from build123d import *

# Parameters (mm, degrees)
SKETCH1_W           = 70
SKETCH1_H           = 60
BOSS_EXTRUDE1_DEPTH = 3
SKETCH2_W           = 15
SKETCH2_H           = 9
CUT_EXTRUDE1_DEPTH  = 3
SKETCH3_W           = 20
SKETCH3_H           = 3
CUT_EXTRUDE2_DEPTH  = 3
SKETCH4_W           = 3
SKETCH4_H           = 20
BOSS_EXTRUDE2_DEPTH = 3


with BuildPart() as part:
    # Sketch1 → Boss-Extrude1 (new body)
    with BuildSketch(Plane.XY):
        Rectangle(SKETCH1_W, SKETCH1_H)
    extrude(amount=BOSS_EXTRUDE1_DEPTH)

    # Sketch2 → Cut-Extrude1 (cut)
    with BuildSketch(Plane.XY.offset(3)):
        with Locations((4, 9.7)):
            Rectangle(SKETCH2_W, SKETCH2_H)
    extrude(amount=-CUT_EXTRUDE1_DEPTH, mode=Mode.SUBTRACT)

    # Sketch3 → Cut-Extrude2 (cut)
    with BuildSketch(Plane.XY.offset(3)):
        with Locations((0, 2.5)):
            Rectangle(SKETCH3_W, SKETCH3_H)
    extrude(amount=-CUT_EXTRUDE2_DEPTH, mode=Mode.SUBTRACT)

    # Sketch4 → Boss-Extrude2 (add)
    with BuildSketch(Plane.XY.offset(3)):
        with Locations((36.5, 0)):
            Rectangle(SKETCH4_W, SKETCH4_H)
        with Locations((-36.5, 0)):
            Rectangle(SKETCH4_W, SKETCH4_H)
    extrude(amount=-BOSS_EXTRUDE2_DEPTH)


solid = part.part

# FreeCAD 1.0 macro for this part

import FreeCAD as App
import Part
import Sketcher
Q = App.Units.Quantity


def add_polygon(sketch, points):
    """Adds a closed chain of lines whose ends are joined by coincident constraints."""
    first, n = sketch.GeometryCount, len(points)
    for a, b in zip(points, points[1:] + points[:1]):
        sketch.addGeometry(Part.LineSegment(App.Vector(*a, 0), App.Vector(*b, 0)), False)
    for i in range(n):
        sketch.addConstraint(Sketcher.Constraint("Coincident", first + i, 2, first + (i + 1) % n, 1))

doc = App.newDocument("Part")
body = doc.addObject("PartDesign::Body", "Body")

sketch1 = body.newObject("Sketcher::SketchObject", "Sketch")
sketch1.AttachmentSupport = (doc.getObject("XY_Plane"), [""])
sketch1.MapMode = "FlatFace"
add_polygon(sketch1, [(-35, 30), (-35, -30), (35, -30), (35, 30)])
sketch1.addConstraint([
    Sketcher.Constraint("Vertical", 0),
    Sketcher.Constraint("Horizontal", 1),
    Sketcher.Constraint("Vertical", 2),
    Sketcher.Constraint("Horizontal", 3),
    Sketcher.Constraint("Symmetric", 0, 2, 2, 2, -1, 1),
    Sketcher.Constraint("DistanceX", 1, 1, 1, 2, Q("70 mm")),
    Sketcher.Constraint("DistanceY", 0, 2, 0, 1, Q("60 mm")),
])
pad1 = body.newObject("PartDesign::Pad", "Pad")
pad1.Profile = sketch1
pad1.Length = 3

sketch2 = body.newObject("Sketcher::SketchObject", "Sketch001")
sketch2.AttachmentSupport = (doc.getObject("XY_Plane"), [""])
sketch2.MapMode = "FlatFace"
sketch2.AttachmentOffset = App.Placement(App.Vector(0, 0, 3), App.Rotation())
add_polygon(sketch2, [(-3.5, 14.2), (-3.5, 5.2), (11.5, 5.2), (11.5, 14.2)])
sketch2.addConstraint([
    Sketcher.Constraint("Vertical", 0),
    Sketcher.Constraint("Horizontal", 1),
    Sketcher.Constraint("Vertical", 2),
    Sketcher.Constraint("Horizontal", 3),
    Sketcher.Constraint("DistanceX", 1, 1, 1, 2, Q("15 mm")),
    Sketcher.Constraint("DistanceY", 0, 2, 0, 1, Q("9 mm")),
    Sketcher.Constraint("DistanceX", 0, 2, -1, 1, Q("3.5 mm")),
    Sketcher.Constraint("DistanceY", -1, 1, 0, 2, Q("5.2 mm")),
])
pocket1 = body.newObject("PartDesign::Pocket", "Pocket")
pocket1.Profile = sketch2
pocket1.Length = 3

sketch3 = body.newObject("Sketcher::SketchObject", "Sketch002")
sketch3.AttachmentSupport = (doc.getObject("XY_Plane"), [""])
sketch3.MapMode = "FlatFace"
sketch3.AttachmentOffset = App.Placement(App.Vector(0, 0, 3), App.Rotation())
add_polygon(sketch3, [(-10, 4), (-10, 1), (10, 1), (10, 4)])
sketch3.addConstraint([
    Sketcher.Constraint("Vertical", 0),
    Sketcher.Constraint("Horizontal", 1),
    Sketcher.Constraint("Vertical", 2),
    Sketcher.Constraint("Horizontal", 3),
    Sketcher.Constraint("DistanceX", 1, 1, 1, 2, Q("20 mm")),
    Sketcher.Constraint("DistanceY", 0, 2, 0, 1, Q("3 mm")),
    Sketcher.Constraint("DistanceX", 0, 2, -1, 1, Q("10 mm")),
    Sketcher.Constraint("DistanceY", -1, 1, 0, 2, Q("1 mm")),
])
pocket2 = body.newObject("PartDesign::Pocket", "Pocket001")
pocket2.Profile = sketch3
pocket2.Length = 3

sketch4 = body.newObject("Sketcher::SketchObject", "Sketch003")
sketch4.AttachmentSupport = (doc.getObject("XY_Plane"), [""])
sketch4.MapMode = "FlatFace"
sketch4.AttachmentOffset = App.Placement(App.Vector(0, 0, 3), App.Rotation())
add_polygon(sketch4, [(35, 10), (35, -10), (38, -10), (38, 10)])
add_polygon(sketch4, [(-38, 10), (-38, -10), (-35, -10), (-35, 10)])
sketch4.addConstraint([
    Sketcher.Constraint("Vertical", 0),
    Sketcher.Constraint("Horizontal", 1),
    Sketcher.Constraint("Vertical", 2),
    Sketcher.Constraint("Horizontal", 3),
    Sketcher.Constraint("Vertical", 4),
    Sketcher.Constraint("Horizontal", 5),
    Sketcher.Constraint("Vertical", 6),
    Sketcher.Constraint("Horizontal", 7),
    Sketcher.Constraint("Symmetric", 2, 2, 4, 2, -1, 1),
    Sketcher.Constraint("Symmetric", 0, 2, 6, 2, -1, 1),
    Sketcher.Constraint("Horizontal", 1, 2, 4, 2),
    Sketcher.Constraint("DistanceX", 1, 1, 1, 2, Q("3 mm")),
    Sketcher.Constraint("DistanceY", 0, 2, 0, 1, Q("20 mm")),
    Sketcher.Constraint("DistanceX", -1, 1, 0, 2, Q("35 mm")),
])
pad2 = body.newObject("PartDesign::Pad", "Pad001")
pad2.Profile = sketch4
pad2.Length = 3
pad2.Reversed = True

doc.recompute()
